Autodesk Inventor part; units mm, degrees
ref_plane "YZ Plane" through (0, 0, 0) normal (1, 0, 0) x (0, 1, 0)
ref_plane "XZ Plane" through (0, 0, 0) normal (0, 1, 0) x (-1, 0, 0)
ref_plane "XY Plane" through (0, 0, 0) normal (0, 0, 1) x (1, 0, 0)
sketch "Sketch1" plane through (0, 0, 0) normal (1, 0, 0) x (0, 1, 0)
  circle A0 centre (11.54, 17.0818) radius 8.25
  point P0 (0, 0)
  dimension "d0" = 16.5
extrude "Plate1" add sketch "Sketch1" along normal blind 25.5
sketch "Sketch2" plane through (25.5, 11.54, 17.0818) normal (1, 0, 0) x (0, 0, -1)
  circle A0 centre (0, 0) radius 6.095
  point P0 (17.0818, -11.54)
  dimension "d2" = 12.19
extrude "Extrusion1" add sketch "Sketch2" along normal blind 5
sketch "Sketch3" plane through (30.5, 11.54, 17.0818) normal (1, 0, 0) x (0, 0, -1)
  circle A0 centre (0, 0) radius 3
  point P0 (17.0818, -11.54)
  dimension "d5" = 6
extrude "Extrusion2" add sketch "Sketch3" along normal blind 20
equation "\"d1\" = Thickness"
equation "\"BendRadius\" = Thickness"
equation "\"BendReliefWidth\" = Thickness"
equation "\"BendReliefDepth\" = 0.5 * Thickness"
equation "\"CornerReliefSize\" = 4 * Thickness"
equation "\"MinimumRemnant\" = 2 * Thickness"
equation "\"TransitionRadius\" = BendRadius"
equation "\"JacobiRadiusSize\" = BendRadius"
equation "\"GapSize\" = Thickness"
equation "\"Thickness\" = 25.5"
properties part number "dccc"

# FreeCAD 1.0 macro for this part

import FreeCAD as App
import Part
import Sketcher

V = App.Vector

doc = App.newDocument("Part")
body = doc.addObject("PartDesign::Body", "Body")

sketch1 = body.newObject("Sketcher::SketchObject", "Sketch")
sketch1.AttachmentSupport = (doc.getObject("YZ_Plane"), [""])
sketch1.MapMode = "FlatFace"
sketch1.addGeometry(Part.Circle(V(12, 17, 0), V(0, 0, 1), 8), False)
sketch1.addConstraint([
    Sketcher.Constraint("Diameter", 0, 16.5),
    Sketcher.Constraint("DistanceX", -1, 1, 0, 3, 11.54),
    Sketcher.Constraint("DistanceY", -1, 1, 0, 3, 17.0818),
])
pad1 = body.newObject("PartDesign::Pad", "Pad")
pad1.Profile = sketch1
pad1.Length = 25.5

sketch2 = body.newObject("Sketcher::SketchObject", "Sketch001")
sketch2.AttachmentSupport = (doc.getObject("YZ_Plane"), [""])
sketch2.MapMode = "FlatFace"
sketch2.AttachmentOffset = App.Placement(V(0, 0, 25.5), App.Rotation())
sketch2.addGeometry(Part.Circle(V(12, 17, 0), V(0, 0, 1), 6), False)
sketch2.addConstraint([
    Sketcher.Constraint("Diameter", 0, 12.19),
    Sketcher.Constraint("DistanceX", -1, 1, 0, 3, 11.54),
    Sketcher.Constraint("DistanceY", -1, 1, 0, 3, 17.0818),
])
pad2 = body.newObject("PartDesign::Pad", "Pad001")
pad2.Profile = sketch2
pad2.Length = 5

sketch3 = body.newObject("Sketcher::SketchObject", "Sketch002")
sketch3.AttachmentSupport = (doc.getObject("YZ_Plane"), [""])
sketch3.MapMode = "FlatFace"
sketch3.AttachmentOffset = App.Placement(V(0, 0, 30.5), App.Rotation())
sketch3.addGeometry(Part.Circle(V(11.5, 17.1, 0), V(0, 0, 1), 3), False)
sketch3.addConstraint([
    Sketcher.Constraint("Diameter", 0, 6.0),
    Sketcher.Constraint("DistanceX", -1, 1, 0, 3, 11.54),
    Sketcher.Constraint("DistanceY", -1, 1, 0, 3, 17.0818),
])
pad3 = body.newObject("PartDesign::Pad", "Pad002")
pad3.Profile = sketch3
pad3.Length = 20

doc.recompute()
